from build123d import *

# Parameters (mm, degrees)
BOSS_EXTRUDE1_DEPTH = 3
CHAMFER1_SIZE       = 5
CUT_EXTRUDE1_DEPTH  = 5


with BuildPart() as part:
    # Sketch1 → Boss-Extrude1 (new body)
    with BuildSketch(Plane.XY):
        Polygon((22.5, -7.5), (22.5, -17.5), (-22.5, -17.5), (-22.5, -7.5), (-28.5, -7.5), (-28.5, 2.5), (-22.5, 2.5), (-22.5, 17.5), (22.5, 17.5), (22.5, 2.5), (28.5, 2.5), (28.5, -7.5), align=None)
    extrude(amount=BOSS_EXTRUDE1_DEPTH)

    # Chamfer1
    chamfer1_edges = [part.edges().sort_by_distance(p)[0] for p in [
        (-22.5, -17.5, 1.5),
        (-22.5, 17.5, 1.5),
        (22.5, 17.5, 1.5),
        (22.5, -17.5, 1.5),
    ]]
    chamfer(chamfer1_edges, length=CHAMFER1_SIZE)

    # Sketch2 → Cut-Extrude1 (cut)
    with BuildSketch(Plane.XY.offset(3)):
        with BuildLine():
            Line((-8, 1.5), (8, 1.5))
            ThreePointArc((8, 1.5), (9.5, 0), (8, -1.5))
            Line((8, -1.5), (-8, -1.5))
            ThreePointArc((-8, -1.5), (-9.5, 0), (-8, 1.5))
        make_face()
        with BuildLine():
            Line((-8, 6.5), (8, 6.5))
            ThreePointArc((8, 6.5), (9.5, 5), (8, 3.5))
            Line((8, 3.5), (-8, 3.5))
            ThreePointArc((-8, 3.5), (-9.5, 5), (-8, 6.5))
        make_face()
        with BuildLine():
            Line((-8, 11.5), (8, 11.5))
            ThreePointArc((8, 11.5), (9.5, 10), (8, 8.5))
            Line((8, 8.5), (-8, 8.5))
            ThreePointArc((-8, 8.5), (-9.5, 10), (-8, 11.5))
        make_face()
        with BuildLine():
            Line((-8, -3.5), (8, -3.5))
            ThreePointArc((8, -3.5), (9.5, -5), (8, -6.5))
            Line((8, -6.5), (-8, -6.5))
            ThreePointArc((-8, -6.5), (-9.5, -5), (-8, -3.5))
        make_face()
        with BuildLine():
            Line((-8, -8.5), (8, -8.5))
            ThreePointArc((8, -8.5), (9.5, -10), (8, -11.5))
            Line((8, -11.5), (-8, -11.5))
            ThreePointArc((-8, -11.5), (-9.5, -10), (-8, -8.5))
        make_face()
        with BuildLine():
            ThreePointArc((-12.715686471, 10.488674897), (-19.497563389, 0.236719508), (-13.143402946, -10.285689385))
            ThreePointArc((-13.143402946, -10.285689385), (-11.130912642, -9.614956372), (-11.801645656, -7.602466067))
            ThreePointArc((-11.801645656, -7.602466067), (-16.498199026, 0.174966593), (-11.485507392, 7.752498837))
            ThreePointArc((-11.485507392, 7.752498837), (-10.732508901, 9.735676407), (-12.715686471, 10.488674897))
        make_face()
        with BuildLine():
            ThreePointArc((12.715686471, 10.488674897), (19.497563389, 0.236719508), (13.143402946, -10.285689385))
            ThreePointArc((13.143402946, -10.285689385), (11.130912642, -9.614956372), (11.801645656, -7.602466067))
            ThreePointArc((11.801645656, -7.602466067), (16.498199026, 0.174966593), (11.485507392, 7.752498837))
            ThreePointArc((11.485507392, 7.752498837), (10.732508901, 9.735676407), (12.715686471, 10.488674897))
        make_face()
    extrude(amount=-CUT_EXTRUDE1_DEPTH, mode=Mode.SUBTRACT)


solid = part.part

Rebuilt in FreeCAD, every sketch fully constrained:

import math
import FreeCAD as App
import Part
import Sketcher
from FreeCAD import Vector
Q = App.Units.Quantity


def edges_at(feature, points):
    """Names of the edges that pass closest to the given points."""
    edges = feature.Shape.Edges
    near = lambda p: min(range(len(edges)), key=lambda i: edges[i].distToShape(Part.Vertex(*p))[0])
    return sorted({f"Edge{near(p) + 1}" for p in points})


def add_polygon(sketch, points):
    """Adds a closed chain of lines whose ends are joined by coincident constraints."""
    first, n = sketch.GeometryCount, len(points)
    for a, b in zip(points, points[1:] + points[:1]):
        sketch.addGeometry(Part.LineSegment(App.Vector(*a, 0), App.Vector(*b, 0)), False)
    for i in range(n):
        sketch.addConstraint(Sketcher.Constraint("Coincident", first + i, 2, first + (i + 1) % n, 1))

doc = App.newDocument("Part")
body = doc.addObject("PartDesign::Body", "Body")

sketch1 = body.newObject("Sketcher::SketchObject", "Sketch")
sketch1.AttachmentSupport = (doc.getObject("XY_Plane"), [""])
sketch1.MapMode = "FlatFace"
add_polygon(sketch1, [(22, -18), (22, -8), (28, -8), (28, 2), (22, 2), (22, 18), (-22, 18), (-22, 2), (-28, 2), (-28, -8), (-22, -8), (-22, -18)])
sketch1.addConstraint([
    Sketcher.Constraint("Vertical", 0),
    Sketcher.Constraint("Horizontal", 1),
    Sketcher.Constraint("Vertical", 2),
    Sketcher.Constraint("Horizontal", 3),
    Sketcher.Constraint("Vertical", 4),
    Sketcher.Constraint("Horizontal", 5),
    Sketcher.Constraint("Vertical", 6),
    Sketcher.Constraint("Horizontal", 7),
    Sketcher.Constraint("Vertical", 8),
    Sketcher.Constraint("Horizontal", 9),
    Sketcher.Constraint("Vertical", 10),
    Sketcher.Constraint("Horizontal", 11),
    Sketcher.Constraint("Symmetric", 4, 2, 10, 2, -1, 1),
    Sketcher.Constraint("Symmetric", 3, 2, 6, 2, -2),
    Sketcher.Constraint("Symmetric", 1, 2, 8, 2, -2),
    Sketcher.Constraint("Vertical", 0, 2, 3, 2),
    Sketcher.Constraint("Equal", 0, 2),
    Sketcher.Constraint("DistanceX", 1, 1, 1, 2, Q("6 mm")),
    Sketcher.Constraint("DistanceX", 5, 2, 5, 1, Q("45 mm")),
    Sketcher.Constraint("DistanceY", 0, 1, 0, 2, Q("10 mm")),
    Sketcher.Constraint("DistanceY", 4, 1, 4, 2, Q("15 mm")),
])
pad1 = body.newObject("PartDesign::Pad", "Pad")
pad1.Profile = sketch1
pad1.Length = 3
doc.recompute()

chamfer = body.newObject("PartDesign::Chamfer", "Chamfer")
chamfer.Base = (pad1, edges_at(pad1, [
    (-22.5, -17.5, 1.5),
    (-22.5, 17.5, 1.5),
    (22.5, 17.5, 1.5),
    (22.5, -17.5, 1.5),
]))
chamfer.Size = 5

sketch2 = body.newObject("Sketcher::SketchObject", "Sketch001")
sketch2.AttachmentSupport = (doc.getObject("XY_Plane"), [""])
sketch2.MapMode = "FlatFace"
sketch2.AttachmentOffset = App.Placement(Vector(0, 0, 3), App.Rotation())
sketch2.addGeometry([
    Part.LineSegment(Vector(8, 1.5, 0), Vector(-8, 1.5, 0)),
    Part.ArcOfCircle(Part.Circle(Vector(-8, 0, 0), Vector(0, 0, 1), 1.5), math.radians(90), math.radians(270)),
    Part.LineSegment(Vector(-8, -1.5, 0), Vector(8, -1.5, 0)),
    Part.ArcOfCircle(Part.Circle(Vector(8, 0, 0), Vector(0, 0, 1), 1.5), math.radians(-90), math.radians(90)),
    Part.LineSegment(Vector(8, 6.5, 0), Vector(-8, 6.5, 0)),
    Part.ArcOfCircle(Part.Circle(Vector(-8, 5, 0), Vector(0, 0, 1), 1.5), math.radians(90), math.radians(270)),
    Part.LineSegment(Vector(-8, 3.5, 0), Vector(8, 3.5, 0)),
    Part.ArcOfCircle(Part.Circle(Vector(8, 5, 0), Vector(0, 0, 1), 1.5), math.radians(-90), math.radians(90)),
    Part.LineSegment(Vector(8, 11.5, 0), Vector(-8, 11.5, 0)),
    Part.ArcOfCircle(Part.Circle(Vector(-8, 10, 0), Vector(0, 0, 1), 1.5), math.radians(90), math.radians(270)),
    Part.LineSegment(Vector(-8, 8.5, 0), Vector(8, 8.5, 0)),
    Part.ArcOfCircle(Part.Circle(Vector(8, 10, 0), Vector(0, 0, 1), 1.5), math.radians(-90), math.radians(90)),
    Part.LineSegment(Vector(8, -3.5, 0), Vector(-8, -3.5, 0)),
    Part.ArcOfCircle(Part.Circle(Vector(-8, -5, 0), Vector(0, 0, 1), 1.5), math.radians(90), math.radians(270)),
    Part.LineSegment(Vector(-8, -6.5, 0), Vector(8, -6.5, 0)),
    Part.ArcOfCircle(Part.Circle(Vector(8, -5, 0), Vector(0, 0, 1), 1.5), math.radians(-90), math.radians(90)),
    Part.LineSegment(Vector(8, -8.5, 0), Vector(-8, -8.5, 0)),
    Part.ArcOfCircle(Part.Circle(Vector(-8, -10, 0), Vector(0, 0, 1), 1.5), math.radians(90), math.radians(270)),
    Part.LineSegment(Vector(-8, -11.5, 0), Vector(8, -11.5, 0)),
    Part.ArcOfCircle(Part.Circle(Vector(8, -10, 0), Vector(0, 0, 1), 1.5), math.radians(-90), math.radians(90)),
    Part.ArcOfCircle(Part.Circle(Vector(-8, 0, 0), Vector(0, 0, 1), 11.5), math.radians(114), math.radians(243)),
    Part.ArcOfCircle(Part.Circle(Vector(-12.5, -8.9, 0), Vector(0, 0, 1), 1.5), math.radians(-117), math.radians(63)),
    Part.ArcOfCircle(Part.Circle(Vector(-8, 0, 0), Vector(0, 0, 1), 8.5), math.radians(114), math.radians(243)),
    Part.ArcOfCircle(Part.Circle(Vector(-12.1, 9.1, 0), Vector(0, 0, 1), 1.5), math.radians(-66), math.radians(114)),
    Part.ArcOfCircle(Part.Circle(Vector(8, 0, 0), Vector(0, 0, 1), 11.5), math.radians(-63), math.radians(66)),
    Part.ArcOfCircle(Part.Circle(Vector(12.1, 9.1, 0), Vector(0, 0, 1), 1.5), math.radians(66), math.radians(246)),
    Part.ArcOfCircle(Part.Circle(Vector(8, 0, 0), Vector(0, 0, 1), 8.5), math.radians(-63), math.radians(66)),
    Part.ArcOfCircle(Part.Circle(Vector(12.5, -8.9, 0), Vector(0, 0, 1), 1.5), math.radians(117), math.radians(297)),
], False)
sketch2.addConstraint([
    Sketcher.Constraint("Tangent", 0, 2, 1, 1),
    Sketcher.Constraint("Tangent", 1, 2, 2, 1),
    Sketcher.Constraint("Tangent", 2, 2, 3, 1),
    Sketcher.Constraint("Tangent", 3, 2, 0, 1),
    Sketcher.Constraint("Tangent", 4, 2, 5, 1),
    Sketcher.Constraint("Tangent", 5, 2, 6, 1),
    Sketcher.Constraint("Tangent", 6, 2, 7, 1),
    Sketcher.Constraint("Tangent", 7, 2, 4, 1),
    Sketcher.Constraint("Tangent", 8, 2, 9, 1),
    Sketcher.Constraint("Tangent", 9, 2, 10, 1),
    Sketcher.Constraint("Tangent", 10, 2, 11, 1),
    Sketcher.Constraint("Tangent", 11, 2, 8, 1),
    Sketcher.Constraint("Tangent", 12, 2, 13, 1),
    Sketcher.Constraint("Tangent", 13, 2, 14, 1),
    Sketcher.Constraint("Tangent", 14, 2, 15, 1),
    Sketcher.Constraint("Tangent", 15, 2, 12, 1),
    Sketcher.Constraint("Tangent", 16, 2, 17, 1),
    Sketcher.Constraint("Tangent", 17, 2, 18, 1),
    Sketcher.Constraint("Tangent", 18, 2, 19, 1),
    Sketcher.Constraint("Tangent", 19, 2, 16, 1),
    Sketcher.Constraint("Tangent", 20, 2, 21, 1),
    Sketcher.Constraint("Tangent", 21, 2, 22, 2),
    Sketcher.Constraint("Tangent", 22, 1, 23, 1),
    Sketcher.Constraint("Tangent", 23, 2, 20, 1),
    Sketcher.Constraint("Tangent", 24, 2, 25, 1),
    Sketcher.Constraint("Tangent", 25, 2, 26, 2),
    Sketcher.Constraint("Tangent", 26, 1, 27, 1),
    Sketcher.Constraint("Tangent", 27, 2, 24, 1),
    Sketcher.Constraint("Horizontal", 0),
    Sketcher.Constraint("Horizontal", 2),
    Sketcher.Constraint("Horizontal", 4),
    Sketcher.Constraint("Horizontal", 6),
    Sketcher.Constraint("Horizontal", 8),
    Sketcher.Constraint("Horizontal", 10),
    Sketcher.Constraint("Horizontal", 12),
    Sketcher.Constraint("Horizontal", 14),
    Sketcher.Constraint("Horizontal", 16),
    Sketcher.Constraint("Horizontal", 18),
    Sketcher.Constraint("Coincident", 20, 3, 1, 3),
    Sketcher.Constraint("Coincident", 22, 3, 1, 3),
    Sketcher.Constraint("Coincident", 24, 3, 3, 3),
    Sketcher.Constraint("Coincident", 26, 3, 3, 3),
    Sketcher.Constraint("Equal", 3, 5),
    Sketcher.Constraint("Equal", 7, 9),
    Sketcher.Constraint("Equal", 11, 13),
    Sketcher.Constraint("Equal", 15, 17),
    Sketcher.Constraint("Equal", 19, 21),
    Sketcher.Constraint("Equal", 20, 24),
    Sketcher.Constraint("Equal", 23, 25),
    Sketcher.Constraint("Symmetric", 1, 3, 3, 3, -1, 1),
    Sketcher.Constraint("Symmetric", 7, 3, 13, 3, -1, 1),
    Sketcher.Constraint("Symmetric", 11, 3, 17, 3, -1, 1),
    Sketcher.Constraint("Horizontal", 23, 3, 25, 3),
    Sketcher.Constraint("Horizontal", 21, 3, 27, 3),
    Sketcher.Constraint("Vertical", 1, 3, 5, 3),
    Sketcher.Constraint("Vertical", 3, 3, 7, 3),
    Sketcher.Constraint("Vertical", 5, 3, 9, 3),
    Sketcher.Constraint("Vertical", 7, 3, 11, 3),
    Sketcher.Constraint("Vertical", 11, 3, 15, 3),
    Sketcher.Constraint("Vertical", 15, 3, 19, 3),
    Sketcher.Constraint("Radius", 1, Q("1.5 mm")),
    Sketcher.Constraint("Radius", 20, Q("11.5 mm")),
    Sketcher.Constraint("DistanceX", 0, 2, 0, 1, Q("16 mm")),
    Sketcher.Constraint("DistanceY", -1, 1, 5, 3, Q("5 mm")),
    Sketcher.Constraint("DistanceY", -1, 1, 9, 3, Q("10 mm")),
    Sketcher.Constraint("DistanceY", -1, 1, 22, 1, Q("7.752499 mm")),
    Sketcher.Constraint("DistanceY", 20, 2, -1, 1, Q("10.285689 mm")),
])
pocket1 = body.newObject("PartDesign::Pocket", "Pocket")
pocket1.Profile = sketch2
pocket1.Length = 5

doc.recompute()
